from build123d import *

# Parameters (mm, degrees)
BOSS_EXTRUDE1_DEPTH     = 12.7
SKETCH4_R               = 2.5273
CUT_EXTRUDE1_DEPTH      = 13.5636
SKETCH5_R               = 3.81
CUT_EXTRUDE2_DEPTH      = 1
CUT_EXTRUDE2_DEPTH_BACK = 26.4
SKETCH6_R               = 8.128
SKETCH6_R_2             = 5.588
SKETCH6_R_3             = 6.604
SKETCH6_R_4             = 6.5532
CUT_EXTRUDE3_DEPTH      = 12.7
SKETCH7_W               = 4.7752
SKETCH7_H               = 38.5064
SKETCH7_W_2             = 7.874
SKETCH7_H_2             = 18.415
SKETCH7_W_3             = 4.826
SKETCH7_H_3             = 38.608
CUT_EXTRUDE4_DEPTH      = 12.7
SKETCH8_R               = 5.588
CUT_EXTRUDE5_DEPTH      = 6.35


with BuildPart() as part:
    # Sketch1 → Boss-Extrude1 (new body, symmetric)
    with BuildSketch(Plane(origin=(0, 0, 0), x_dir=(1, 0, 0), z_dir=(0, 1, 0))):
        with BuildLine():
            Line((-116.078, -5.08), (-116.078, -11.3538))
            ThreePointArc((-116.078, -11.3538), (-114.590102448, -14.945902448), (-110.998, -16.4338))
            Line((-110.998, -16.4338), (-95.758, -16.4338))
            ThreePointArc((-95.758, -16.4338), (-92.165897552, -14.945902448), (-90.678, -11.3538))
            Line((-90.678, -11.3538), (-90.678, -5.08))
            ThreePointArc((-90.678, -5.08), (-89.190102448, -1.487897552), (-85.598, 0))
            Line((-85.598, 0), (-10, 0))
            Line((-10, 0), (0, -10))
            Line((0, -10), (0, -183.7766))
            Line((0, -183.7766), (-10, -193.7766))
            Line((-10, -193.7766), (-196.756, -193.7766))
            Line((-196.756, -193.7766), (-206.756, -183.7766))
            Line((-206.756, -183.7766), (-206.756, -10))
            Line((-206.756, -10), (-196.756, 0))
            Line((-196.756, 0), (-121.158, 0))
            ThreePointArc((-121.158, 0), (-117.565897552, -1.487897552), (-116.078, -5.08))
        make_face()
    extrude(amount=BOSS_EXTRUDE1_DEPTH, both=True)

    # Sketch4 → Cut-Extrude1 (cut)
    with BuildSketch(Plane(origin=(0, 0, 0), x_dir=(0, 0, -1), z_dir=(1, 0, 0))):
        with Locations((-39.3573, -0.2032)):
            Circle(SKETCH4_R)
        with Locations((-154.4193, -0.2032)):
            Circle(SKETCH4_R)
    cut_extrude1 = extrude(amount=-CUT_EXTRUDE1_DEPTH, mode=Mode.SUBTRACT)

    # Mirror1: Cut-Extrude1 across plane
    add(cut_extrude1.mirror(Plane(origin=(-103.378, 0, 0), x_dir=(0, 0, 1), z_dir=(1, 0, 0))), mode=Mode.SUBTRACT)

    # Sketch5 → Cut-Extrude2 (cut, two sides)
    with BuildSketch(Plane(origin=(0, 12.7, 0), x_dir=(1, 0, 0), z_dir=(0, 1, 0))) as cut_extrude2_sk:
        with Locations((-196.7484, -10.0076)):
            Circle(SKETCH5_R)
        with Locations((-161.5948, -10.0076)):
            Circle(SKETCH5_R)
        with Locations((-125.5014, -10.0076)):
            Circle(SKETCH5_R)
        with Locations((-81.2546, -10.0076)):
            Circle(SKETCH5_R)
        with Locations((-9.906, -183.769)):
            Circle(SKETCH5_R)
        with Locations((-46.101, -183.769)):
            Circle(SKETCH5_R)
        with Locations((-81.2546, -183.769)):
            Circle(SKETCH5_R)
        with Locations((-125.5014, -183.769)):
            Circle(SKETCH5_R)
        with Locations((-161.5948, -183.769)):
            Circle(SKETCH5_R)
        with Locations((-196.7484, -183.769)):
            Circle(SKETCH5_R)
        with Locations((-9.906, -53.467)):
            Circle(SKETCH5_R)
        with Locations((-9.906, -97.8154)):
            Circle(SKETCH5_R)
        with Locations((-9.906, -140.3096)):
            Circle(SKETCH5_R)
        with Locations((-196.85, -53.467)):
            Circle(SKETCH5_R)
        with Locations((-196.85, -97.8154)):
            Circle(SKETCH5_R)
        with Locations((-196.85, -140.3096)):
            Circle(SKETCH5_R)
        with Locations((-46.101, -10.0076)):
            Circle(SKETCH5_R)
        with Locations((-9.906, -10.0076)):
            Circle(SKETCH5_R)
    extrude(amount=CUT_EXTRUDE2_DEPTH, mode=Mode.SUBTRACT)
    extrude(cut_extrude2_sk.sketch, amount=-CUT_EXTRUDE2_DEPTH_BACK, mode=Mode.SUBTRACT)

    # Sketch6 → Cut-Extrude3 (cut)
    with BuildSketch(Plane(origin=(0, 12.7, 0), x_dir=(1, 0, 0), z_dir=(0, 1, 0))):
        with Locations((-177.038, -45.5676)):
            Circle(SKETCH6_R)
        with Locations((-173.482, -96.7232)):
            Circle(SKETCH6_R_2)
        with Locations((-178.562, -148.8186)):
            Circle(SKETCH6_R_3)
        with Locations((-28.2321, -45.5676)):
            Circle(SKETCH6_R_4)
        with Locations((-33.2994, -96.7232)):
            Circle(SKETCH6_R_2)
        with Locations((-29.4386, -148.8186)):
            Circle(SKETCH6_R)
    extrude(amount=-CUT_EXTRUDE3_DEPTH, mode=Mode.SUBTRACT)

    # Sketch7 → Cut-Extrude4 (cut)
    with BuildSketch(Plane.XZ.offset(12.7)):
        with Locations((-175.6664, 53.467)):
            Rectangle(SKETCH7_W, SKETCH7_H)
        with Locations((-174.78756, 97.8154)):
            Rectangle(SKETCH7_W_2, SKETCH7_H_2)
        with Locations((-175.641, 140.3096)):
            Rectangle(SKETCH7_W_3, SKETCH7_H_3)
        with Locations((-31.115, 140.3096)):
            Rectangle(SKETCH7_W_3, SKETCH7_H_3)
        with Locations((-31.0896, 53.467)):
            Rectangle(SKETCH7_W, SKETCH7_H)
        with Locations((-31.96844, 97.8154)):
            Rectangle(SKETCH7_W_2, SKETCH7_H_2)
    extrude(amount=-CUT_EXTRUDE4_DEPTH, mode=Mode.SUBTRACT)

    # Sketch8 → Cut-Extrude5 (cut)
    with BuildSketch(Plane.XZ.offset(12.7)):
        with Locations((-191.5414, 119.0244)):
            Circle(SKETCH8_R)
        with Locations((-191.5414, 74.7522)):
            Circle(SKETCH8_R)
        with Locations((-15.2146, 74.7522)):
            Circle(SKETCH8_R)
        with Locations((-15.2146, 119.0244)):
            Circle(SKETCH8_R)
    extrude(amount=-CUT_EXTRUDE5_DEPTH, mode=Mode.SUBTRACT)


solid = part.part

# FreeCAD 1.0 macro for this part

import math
import FreeCAD as App
import Part
import Sketcher
from FreeCAD import Vector
Q = App.Units.Quantity


def add_polygon(sketch, points):
    """Adds a closed chain of lines whose ends are joined by coincident constraints."""
    first, n = sketch.GeometryCount, len(points)
    for a, b in zip(points, points[1:] + points[:1]):
        sketch.addGeometry(Part.LineSegment(App.Vector(*a, 0), App.Vector(*b, 0)), False)
    for i in range(n):
        sketch.addConstraint(Sketcher.Constraint("Coincident", first + i, 2, first + (i + 1) % n, 1))

doc = App.newDocument("Part")
body = doc.addObject("PartDesign::Body", "Body")

# Sketch on XZ plane
sketch1 = body.newObject("Sketcher::SketchObject", "Sketch")
sketch1.AttachmentSupport = (doc.getObject("XZ_Plane"), [""])
sketch1.MapMode = "FlatFace"
sketch1.addGeometry([
    Part.LineSegment(Vector(-116, 11, 0), Vector(-116, 5, 0)),  # 0
    Part.ArcOfCircle(Part.Circle(Vector(-121, 5, 0), Vector(0, 0, 1), 5), math.radians(-90), math.radians(0)),  # 1
    Part.LineSegment(Vector(-121, 0, 0), Vector(-197, 0, 0)),  # 2
    Part.LineSegment(Vector(-197, 0, 0), Vector(-207, 10, 0)),  # 3
    Part.LineSegment(Vector(-207, 10, 0), Vector(-207, 184, 0)),  # 4
    Part.LineSegment(Vector(-207, 184, 0), Vector(-197, 194, 0)),  # 5
    Part.LineSegment(Vector(-197, 194, 0), Vector(-10, 194, 0)),  # 6
    Part.LineSegment(Vector(-10, 194, 0), Vector(0, 184, 0)),  # 7
    Part.LineSegment(Vector(0, 184, 0), Vector(0, 10, 0)),  # 8
    Part.LineSegment(Vector(0, 10, 0), Vector(-10, 0, 0)),  # 9
    Part.LineSegment(Vector(-10, 0, 0), Vector(-86, 0, 0)),  # 10
    Part.ArcOfCircle(Part.Circle(Vector(-86, 5, 0), Vector(0, 0, 1), 5), math.radians(-180), math.radians(-90)),  # 11
    Part.LineSegment(Vector(-91, 5, 0), Vector(-91, 11, 0)),  # 12
    Part.ArcOfCircle(Part.Circle(Vector(-96, 11, 0), Vector(0, 0, 1), 5), math.radians(0), math.radians(90)),  # 13
    Part.LineSegment(Vector(-96, 16, 0), Vector(-111, 16, 0)),  # 14
    Part.ArcOfCircle(Part.Circle(Vector(-111, 11, 0), Vector(0, 0, 1), 5), math.radians(90), math.radians(180)),  # 15
], False)
sketch1.addConstraint([
    Sketcher.Constraint("Tangent", 0, 2, 1, 2),
    Sketcher.Constraint("Tangent", 1, 1, 2, 1),
    Sketcher.Constraint("Coincident", 2, 2, 3, 1),
    Sketcher.Constraint("Coincident", 3, 2, 4, 1),
    Sketcher.Constraint("Coincident", 4, 2, 5, 1),
    Sketcher.Constraint("Coincident", 5, 2, 6, 1),
    Sketcher.Constraint("Coincident", 6, 2, 7, 1),
    Sketcher.Constraint("Coincident", 7, 2, 8, 1),
    Sketcher.Constraint("Coincident", 8, 2, 9, 1),
    Sketcher.Constraint("Coincident", 9, 2, 10, 1),
    Sketcher.Constraint("Tangent", 10, 2, 11, 2),
    Sketcher.Constraint("Tangent", 11, 1, 12, 1),
    Sketcher.Constraint("Tangent", 12, 2, 13, 1),
    Sketcher.Constraint("Tangent", 13, 2, 14, 1),
    Sketcher.Constraint("Tangent", 14, 2, 15, 1),
    Sketcher.Constraint("Tangent", 15, 2, 0, 1),
    Sketcher.Constraint("Vertical", 0),
    Sketcher.Constraint("Horizontal", 2),
    Sketcher.Constraint("Vertical", 4),
    Sketcher.Constraint("Horizontal", 6),
    Sketcher.Constraint("Vertical", 8),
    Sketcher.Constraint("Horizontal", 10),
    Sketcher.Constraint("Vertical", 12),
    Sketcher.Constraint("Horizontal", 14),
    Sketcher.Constraint("Equal", 1, 11),
    Sketcher.Constraint("Equal", 11, 13),
    Sketcher.Constraint("Equal", 13, 15),
    Sketcher.Constraint("PointOnObject", 1, 1, -1),
    Sketcher.Constraint("PointOnObject", 7, 2, -2),
    Sketcher.Constraint("PointOnObject", 9, 2, -1),
    Sketcher.Constraint("Perpendicular", 3, 5),
    Sketcher.Constraint("Perpendicular", 5, 7),
    Sketcher.Constraint("Perpendicular", 7, 9),
    Sketcher.Constraint("Horizontal", 4, 2, 7, 2),
    Sketcher.Constraint("Horizontal", 3, 2, 8, 2),
    Sketcher.Constraint("Vertical", 2, 2, 5, 2),
    Sketcher.Constraint("Vertical", 6, 2, 9, 2),
    Sketcher.Constraint("Equal", 2, 10),
    Sketcher.Constraint("Radius", 1, Q("0.2 in")),
    Sketcher.Constraint("DistanceX", 14, 2, 14, 1, Q("0.6 in")),
    Sketcher.Constraint("DistanceY", 0, 2, 0, 1, Q("0.247 in")),
    Sketcher.Constraint("DistanceX", 1, 3, -1, 1, Q("4.77 in")),
    Sketcher.Constraint("DistanceY", -1, 1, 5, 2, Q("7.629 in")),
    Sketcher.Constraint("DistanceX", 2, 2, 2, 1, Q("75.598 mm")),
])
pad1 = body.newObject("PartDesign::Pad", "Pad")
pad1.Profile = sketch1
pad1.Length = Q("1 in")
pad1.Midplane = True

# Sketch on YZ plane
sketch2 = body.newObject("Sketcher::SketchObject", "Sketch001")
sketch2.AttachmentSupport = (doc.getObject("YZ_Plane"), [""])
sketch2.MapMode = "FlatFace"
sketch2.addGeometry([
    Part.Circle(Vector(-0.2, 39.4, 0), Vector(0, 0, 1), 2.5),
    Part.Circle(Vector(-0.2, 154.4, 0), Vector(0, 0, 1), 2.5),
], False)
sketch2.addConstraint([
    Sketcher.Constraint("Equal", 0, 1),
    Sketcher.Constraint("Vertical", 0, 3, 1, 3),
    Sketcher.Constraint("Diameter", 0, Q("0.199 in")),
    Sketcher.Constraint("DistanceY", 0, 3, 1, 3, Q("4.53 in")),
    Sketcher.Constraint("DistanceX", 0, 3, -1, 1, Q("0.008 in")),
    Sketcher.Constraint("DistanceY", -1, 1, 0, 3, Q("1.5495 in")),
])
pocket1 = body.newObject("PartDesign::Pocket", "Pocket")
pocket1.Profile = sketch2
pocket1.Length = Q("0.534 in")
doc.recompute()

datumplane = body.newObject("PartDesign::Plane", "DatumPlane")
datumplane.AttachmentSupport = (doc.getObject("YZ_Plane"), [""])
datumplane.MapMode = "FlatFace"
datumplane.AttachmentOffset = App.Placement(Vector(0, 0, -4.07 * 25.4), App.Rotation())
mirrored = body.newObject("PartDesign::Mirrored", "Mirrored")
mirrored.Originals = [pocket1]
mirrored.MirrorPlane = (datumplane, [""])
body.Tip = mirrored

# Sketch on XZ plane
sketch3 = body.newObject("Sketcher::SketchObject", "Sketch002")
sketch3.AttachmentSupport = (doc.getObject("XZ_Plane"), [""])
sketch3.MapMode = "FlatFace"
sketch3.AttachmentOffset = App.Placement(Vector(0, 0, -0.5 * 25.4), App.Rotation())
sketch3.addGeometry([
    Part.Circle(Vector(-196.7, 10, 0), Vector(0, 0, 1), 3.8),  # 0
    Part.Circle(Vector(-161.6, 10, 0), Vector(0, 0, 1), 3.8),  # 1
    Part.Circle(Vector(-125.5, 10, 0), Vector(0, 0, 1), 3.8),  # 2
    Part.Circle(Vector(-81.3, 10, 0), Vector(0, 0, 1), 3.8),  # 3
    Part.Circle(Vector(-9.9, 183.8, 0), Vector(0, 0, 1), 3.8),  # 4
    Part.Circle(Vector(-46.1, 183.8, 0), Vector(0, 0, 1), 3.8),  # 5
    Part.Circle(Vector(-81.3, 183.8, 0), Vector(0, 0, 1), 3.8),  # 6
    Part.Circle(Vector(-125.5, 183.8, 0), Vector(0, 0, 1), 3.8),  # 7
    Part.Circle(Vector(-161.6, 183.8, 0), Vector(0, 0, 1), 3.8),  # 8
    Part.Circle(Vector(-196.7, 183.8, 0), Vector(0, 0, 1), 3.8),  # 9
    Part.Circle(Vector(-9.9, 53.5, 0), Vector(0, 0, 1), 3.8),  # 10
    Part.Circle(Vector(-9.9, 97.8, 0), Vector(0, 0, 1), 3.8),  # 11
    Part.Circle(Vector(-9.9, 140.3, 0), Vector(0, 0, 1), 3.8),  # 12
    Part.Circle(Vector(-196.8, 53.5, 0), Vector(0, 0, 1), 3.8),  # 13
    Part.Circle(Vector(-196.8, 97.8, 0), Vector(0, 0, 1), 3.8),  # 14
    Part.Circle(Vector(-196.8, 140.3, 0), Vector(0, 0, 1), 3.8),  # 15
    Part.Circle(Vector(-46.1, 10, 0), Vector(0, 0, 1), 3.8),  # 16
    Part.Circle(Vector(-9.9, 10, 0), Vector(0, 0, 1), 3.8),  # 17
], False)
sketch3.addConstraint([
    Sketcher.Constraint("Equal", 0, 1),
    Sketcher.Constraint("Equal", 1, 2),
    Sketcher.Constraint("Equal", 2, 3),
    Sketcher.Constraint("Equal", 3, 4),
    Sketcher.Constraint("Equal", 4, 5),
    Sketcher.Constraint("Equal", 5, 6),
    Sketcher.Constraint("Equal", 6, 7),
    Sketcher.Constraint("Equal", 7, 8),
    Sketcher.Constraint("Equal", 8, 9),
    Sketcher.Constraint("Equal", 9, 10),
    Sketcher.Constraint("Equal", 10, 11),
    Sketcher.Constraint("Equal", 11, 12),
    Sketcher.Constraint("Equal", 12, 13),
    Sketcher.Constraint("Equal", 13, 14),
    Sketcher.Constraint("Equal", 14, 15),
    Sketcher.Constraint("Equal", 15, 16),
    Sketcher.Constraint("Equal", 16, 17),
    Sketcher.Constraint("Horizontal", 0, 3, 1, 3),
    Sketcher.Constraint("Horizontal", 1, 3, 2, 3),
    Sketcher.Constraint("Horizontal", 2, 3, 3, 3),
    Sketcher.Constraint("Horizontal", 4, 3, 5, 3),
    Sketcher.Constraint("Horizontal", 5, 3, 6, 3),
    Sketcher.Constraint("Horizontal", 6, 3, 7, 3),
    Sketcher.Constraint("Horizontal", 7, 3, 8, 3),
    Sketcher.Constraint("Horizontal", 8, 3, 9, 3),
    Sketcher.Constraint("Horizontal", 10, 3, 13, 3),
    Sketcher.Constraint("Horizontal", 11, 3, 14, 3),
    Sketcher.Constraint("Horizontal", 12, 3, 15, 3),
    Sketcher.Constraint("Horizontal", 3, 3, 16, 3),
    Sketcher.Constraint("Horizontal", 16, 3, 17, 3),
    Sketcher.Constraint("Vertical", 3, 3, 6, 3),
    Sketcher.Constraint("Vertical", 2, 3, 7, 3),
    Sketcher.Constraint("Vertical", 1, 3, 8, 3),
    Sketcher.Constraint("Vertical", 0, 3, 9, 3),
    Sketcher.Constraint("Vertical", 4, 3, 10, 3),
    Sketcher.Constraint("Vertical", 10, 3, 11, 3),
    Sketcher.Constraint("Vertical", 11, 3, 12, 3),
    Sketcher.Constraint("Vertical", 13, 3, 14, 3),
    Sketcher.Constraint("Vertical", 14, 3, 15, 3),
    Sketcher.Constraint("Vertical", 5, 3, 16, 3),
    Sketcher.Constraint("Vertical", 12, 3, 17, 3),
    Sketcher.Constraint("Diameter", 0, Q("0.3 in")),
    Sketcher.Constraint("DistanceX", 4, 3, -1, 1, Q("0.39 in")),
    Sketcher.Constraint("DistanceX", 13, 3, -1, 1, Q("7.75 in")),
    Sketcher.Constraint("DistanceY", 10, 3, 4, 3, Q("5.13 in")),
    Sketcher.Constraint("DistanceX", 0, 3, -1, 1, Q("7.746 in")),
    Sketcher.Constraint("DistanceY", -1, 1, 0, 3, Q("0.394 in")),
    Sketcher.Constraint("DistanceX", 1, 3, -1, 1, Q("6.362 in")),
    Sketcher.Constraint("DistanceX", 2, 3, -1, 1, Q("4.941 in")),
    Sketcher.Constraint("DistanceX", 3, 3, -1, 1, Q("3.199 in")),
    Sketcher.Constraint("DistanceY", -1, 1, 4, 3, Q("7.235 in")),
    Sketcher.Constraint("DistanceX", 5, 3, -1, 1, Q("1.815 in")),
    Sketcher.Constraint("DistanceY", -1, 1, 11, 3, Q("3.851 in")),
    Sketcher.Constraint("DistanceY", -1, 1, 12, 3, Q("5.524 in")),
])
pocket2 = body.newObject("PartDesign::Pocket", "Pocket001")
pocket2.Profile = sketch3
pocket2.Type = "ThroughAll"
pocket2.Midplane = True

# Sketch on XZ plane
sketch4 = body.newObject("Sketcher::SketchObject", "Sketch003")
sketch4.AttachmentSupport = (doc.getObject("XZ_Plane"), [""])
sketch4.MapMode = "FlatFace"
sketch4.AttachmentOffset = App.Placement(Vector(0, 0, -0.5 * 25.4), App.Rotation())
sketch4.addGeometry([
    Part.Circle(Vector(-177, 46, 0), Vector(0, 0, 1), 8),  # 0
    Part.Circle(Vector(-173, 97, 0), Vector(0, 0, 1), 6),  # 1
    Part.Circle(Vector(-179, 149, 0), Vector(0, 0, 1), 7),  # 2
    Part.Circle(Vector(-28, 46, 0), Vector(0, 0, 1), 7),  # 3
    Part.Circle(Vector(-33, 97, 0), Vector(0, 0, 1), 6),  # 4
    Part.Circle(Vector(-29, 149, 0), Vector(0, 0, 1), 8),  # 5
], False)
sketch4.addConstraint([
    Sketcher.Constraint("Equal", 1, 4),
    Sketcher.Constraint("Equal", 0, 5),
    Sketcher.Constraint("Horizontal", 0, 3, 3, 3),
    Sketcher.Constraint("Horizontal", 1, 3, 4, 3),
    Sketcher.Constraint("Horizontal", 2, 3, 5, 3),
    Sketcher.Constraint("Diameter", 0, Q("0.64 in")),
    Sketcher.Constraint("Diameter", 1, Q("0.44 in")),
    Sketcher.Constraint("Diameter", 2, Q("0.52 in")),
    Sketcher.Constraint("Diameter", 3, Q("0.516 in")),
    Sketcher.Constraint("DistanceX", 2, 3, 1, 3, Q("0.2 in")),
    Sketcher.Constraint("DistanceX", 0, 3, -1, 1, Q("6.97 in")),
    Sketcher.Constraint("DistanceX", 1, 3, -1, 1, Q("6.83 in")),
    Sketcher.Constraint("DistanceY", -1, 1, 0, 3, Q("1.794 in")),
    Sketcher.Constraint("DistanceY", -1, 1, 1, 3, Q("3.808 in")),
    Sketcher.Constraint("DistanceY", -1, 1, 2, 3, Q("5.859 in")),
    Sketcher.Constraint("DistanceX", 4, 3, -1, 1, Q("1.311 in")),
    Sketcher.Constraint("DistanceX", 5, 3, -1, 1, Q("1.159 in")),
    Sketcher.Constraint("DistanceX", 3, 3, -1, 1, Q("1.1115 in")),
])
pocket3 = body.newObject("PartDesign::Pocket", "Pocket002")
pocket3.Profile = sketch4
pocket3.Length = Q("0.5 in")
pocket3.Reversed = True

# Sketch on XZ plane
sketch5 = body.newObject("Sketcher::SketchObject", "Sketch004")
sketch5.AttachmentSupport = (doc.getObject("XZ_Plane"), [""])
sketch5.MapMode = "FlatFace"
sketch5.AttachmentOffset = App.Placement(Vector(0, 0, 0.5 * 25.4), App.Rotation())
add_polygon(sketch5, [(-178.1, 72.7), (-178.1, 34.2), (-173.3, 34.2), (-173.3, 72.7)])  # lines 0-3
add_polygon(sketch5, [(-178.7, 107), (-178.7, 88.6), (-170.9, 88.6), (-170.9, 107)])  # lines 4-7
add_polygon(sketch5, [(-178.1, 159.6), (-178.1, 121), (-173.2, 121), (-173.2, 159.6)])  # lines 8-11
add_polygon(sketch5, [(-33.5, 159.6), (-33.5, 121), (-28.7, 121), (-28.7, 159.6)])  # lines 12-15
add_polygon(sketch5, [(-33.5, 72.7), (-33.5, 34.2), (-28.7, 34.2), (-28.7, 72.7)])  # lines 16-19
add_polygon(sketch5, [(-35.9, 107), (-35.9, 88.6), (-28, 88.6), (-28, 107)])  # lines 20-23
sketch5.addConstraint([
    Sketcher.Constraint("Vertical", 0),
    Sketcher.Constraint("Horizontal", 1),
    Sketcher.Constraint("Vertical", 2),
    Sketcher.Constraint("Horizontal", 3),
    Sketcher.Constraint("Vertical", 4),
    Sketcher.Constraint("Horizontal", 5),
    Sketcher.Constraint("Vertical", 6),
    Sketcher.Constraint("Horizontal", 7),
    Sketcher.Constraint("Vertical", 8),
    Sketcher.Constraint("Horizontal", 9),
    Sketcher.Constraint("Vertical", 10),
    Sketcher.Constraint("Horizontal", 11),
    Sketcher.Constraint("Vertical", 12),
    Sketcher.Constraint("Horizontal", 13),
    Sketcher.Constraint("Vertical", 14),
    Sketcher.Constraint("Horizontal", 15),
    Sketcher.Constraint("Vertical", 16),
    Sketcher.Constraint("Horizontal", 17),
    Sketcher.Constraint("Vertical", 18),
    Sketcher.Constraint("Horizontal", 19),
    Sketcher.Constraint("Vertical", 20),
    Sketcher.Constraint("Horizontal", 21),
    Sketcher.Constraint("Vertical", 22),
    Sketcher.Constraint("Horizontal", 23),
    Sketcher.Constraint("Horizontal", 9, 2, 12, 2),
    Sketcher.Constraint("Horizontal", 11, 2, 14, 2),
    Sketcher.Constraint("Horizontal", 1, 2, 16, 2),
    Sketcher.Constraint("Horizontal", 3, 2, 18, 2),
    Sketcher.Constraint("Horizontal", 5, 2, 20, 2),
    Sketcher.Constraint("Horizontal", 7, 2, 22, 2),
    Sketcher.Constraint("Vertical", 3, 2, 8, 2),
    Sketcher.Constraint("Vertical", 14, 2, 17, 2),
    Sketcher.Constraint("Equal", 11, 13),
    Sketcher.Constraint("Equal", 3, 17),
    Sketcher.Constraint("Equal", 7, 21),
    Sketcher.Constraint("DistanceX", 5, 1, 5, 2, Q("0.31 in")),
    Sketcher.Constraint("DistanceX", 9, 1, 9, 2, Q("0.19 in")),
    Sketcher.Constraint("DistanceY", 8, 2, 8, 1, Q("1.52 in")),
    Sketcher.Constraint("DistanceX", 9, 2, 12, 2, Q("5.5 in")),
    Sketcher.Constraint("DistanceX", 1, 1, 1, 2, Q("0.188 in")),
    Sketcher.Constraint("DistanceY", 0, 2, 0, 1, Q("1.516 in")),
    Sketcher.Constraint("DistanceY", 4, 2, 4, 1, Q("0.725 in")),
    Sketcher.Constraint("DistanceX", 0, 2, -1, 1, Q("7.01 in")),
    Sketcher.Constraint("DistanceY", -1, 1, 0, 2, Q("1.347 in")),
    Sketcher.Constraint("DistanceY", -1, 1, 8, 2, Q("4.764 in")),
    Sketcher.Constraint("DistanceX", 4, 2, -1, 1, Q("7.0364 in")),
    Sketcher.Constraint("DistanceY", -1, 1, 4, 2, Q("3.4885 in")),
    Sketcher.Constraint("DistanceX", 20, 2, -1, 1, Q("1.4136 in")),
])
pocket4 = body.newObject("PartDesign::Pocket", "Pocket003")
pocket4.Profile = sketch5
pocket4.Length = Q("0.5 in")

# Sketch on XZ plane
sketch6 = body.newObject("Sketcher::SketchObject", "Sketch005")
sketch6.AttachmentSupport = (doc.getObject("XZ_Plane"), [""])
sketch6.MapMode = "FlatFace"
sketch6.AttachmentOffset = App.Placement(Vector(0, 0, 0.5 * 25.4), App.Rotation())
sketch6.addGeometry([
    Part.Circle(Vector(-192, 119, 0), Vector(0, 0, 1), 6),
    Part.Circle(Vector(-192, 75, 0), Vector(0, 0, 1), 6),
    Part.Circle(Vector(-15, 75, 0), Vector(0, 0, 1), 6),
    Part.Circle(Vector(-15, 119, 0), Vector(0, 0, 1), 6),
], False)
sketch6.addConstraint([
    Sketcher.Constraint("Equal", 0, 1),
    Sketcher.Constraint("Equal", 1, 2),
    Sketcher.Constraint("Equal", 2, 3),
    Sketcher.Constraint("Horizontal", 1, 3, 2, 3),
    Sketcher.Constraint("Horizontal", 0, 3, 3, 3),
    Sketcher.Constraint("Vertical", 0, 3, 1, 3),
    Sketcher.Constraint("Vertical", 2, 3, 3, 3),
    Sketcher.Constraint("Diameter", 0, Q("0.44 in")),
    Sketcher.Constraint("DistanceX", 0, 3, -1, 1, Q("7.541 in")),
    Sketcher.Constraint("DistanceY", -1, 1, 0, 3, Q("4.686 in")),
    Sketcher.Constraint("DistanceY", -1, 1, 1, 3, Q("2.943 in")),
    Sketcher.Constraint("DistanceX", 2, 3, -1, 1, Q("0.599 in")),
])
pocket5 = body.newObject("PartDesign::Pocket", "Pocket004")
pocket5.Profile = sketch6
pocket5.Length = Q("0.25 in")

doc.recompute()
